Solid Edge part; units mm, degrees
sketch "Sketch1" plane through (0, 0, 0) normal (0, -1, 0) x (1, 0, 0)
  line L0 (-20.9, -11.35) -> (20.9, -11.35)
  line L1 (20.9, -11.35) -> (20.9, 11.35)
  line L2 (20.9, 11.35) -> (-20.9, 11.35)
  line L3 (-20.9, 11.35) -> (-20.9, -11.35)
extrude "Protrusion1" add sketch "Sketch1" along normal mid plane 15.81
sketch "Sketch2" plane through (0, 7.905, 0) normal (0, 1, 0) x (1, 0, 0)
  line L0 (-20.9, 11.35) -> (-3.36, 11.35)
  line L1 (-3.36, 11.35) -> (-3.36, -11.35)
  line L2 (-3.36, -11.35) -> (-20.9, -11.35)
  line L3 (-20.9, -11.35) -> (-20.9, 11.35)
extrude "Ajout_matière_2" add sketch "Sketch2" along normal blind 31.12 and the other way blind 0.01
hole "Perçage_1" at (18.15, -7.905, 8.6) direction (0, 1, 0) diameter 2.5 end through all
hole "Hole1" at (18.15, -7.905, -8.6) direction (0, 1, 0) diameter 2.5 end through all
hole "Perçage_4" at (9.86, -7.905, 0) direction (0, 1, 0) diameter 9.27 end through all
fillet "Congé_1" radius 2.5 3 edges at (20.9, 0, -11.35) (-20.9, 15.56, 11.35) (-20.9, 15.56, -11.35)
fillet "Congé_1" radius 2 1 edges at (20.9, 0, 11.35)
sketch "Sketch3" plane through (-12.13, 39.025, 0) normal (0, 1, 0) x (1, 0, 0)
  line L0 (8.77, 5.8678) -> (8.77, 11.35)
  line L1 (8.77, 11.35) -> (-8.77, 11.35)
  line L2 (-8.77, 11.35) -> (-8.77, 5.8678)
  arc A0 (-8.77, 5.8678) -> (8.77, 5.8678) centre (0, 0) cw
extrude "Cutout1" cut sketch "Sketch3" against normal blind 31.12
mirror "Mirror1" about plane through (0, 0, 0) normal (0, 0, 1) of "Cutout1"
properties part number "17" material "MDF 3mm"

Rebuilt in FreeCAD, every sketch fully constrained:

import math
import FreeCAD as App
import Part
import Sketcher
from FreeCAD import Vector
Q = App.Units.Quantity


def edges_at(feature, points):
    """Names of the edges that pass closest to the given points."""
    edges = feature.Shape.Edges
    near = lambda p: min(range(len(edges)), key=lambda i: edges[i].distToShape(Part.Vertex(*p))[0])
    return sorted({f"Edge{near(p) + 1}" for p in points})

doc = App.newDocument("Part")
params = doc.addObject("Spreadsheet::Sheet", "Params")
for row, (alias, value) in enumerate([
    ("sketch1_width", "41.8 mm"),
    ("sketch1_height", "22.7 mm"),
    ("pad1_length", "15.81 mm"),
    ("sketch2_height", "22.7 mm"),
    ("sketch2_width", "17.54 mm"),
    ("pad2_length", "31.12 mm"),
    ("pad2_length2", "0.01 mm"),
    ("sketch3_diameter", "2.5 mm"),
    ("hole_diameter", "2.5 mm"),
    ("sketch4_diameter", "2.5 mm"),
    ("hole2_diameter", "2.5 mm"),
    ("sketch5_diameter", "9.27 mm"),
    ("hole3_diameter", "9.27 mm"),
    ("fillet_radius", "2.5 mm"),
    ("fillet2_radius", "2 mm"),
    ("sketch6_width", "17.54 mm"),
    ("pocket1_length", "31.12 mm"),
], start=1):
    params.set(f"A{row}", alias)
    params.set(f"B{row}", "=" + value)
    params.setAlias(f"B{row}", alias)

body = doc.addObject("PartDesign::Body", "Body")

# Sketch on XZ plane
sketch1 = body.newObject("Sketcher::SketchObject", "Sketch")
sketch1.AttachmentSupport = (doc.getObject("XZ_Plane"), [""])
sketch1.MapMode = "FlatFace"
sketch1.addGeometry([
    Part.LineSegment(Vector(-21, 11, 0), Vector(-21, -11, 0)),
    Part.LineSegment(Vector(-21, -11, 0), Vector(21, -11, 0)),
    Part.LineSegment(Vector(21, -11, 0), Vector(21, 11, 0)),
    Part.LineSegment(Vector(21, 11, 0), Vector(-21, 11, 0)),
], False)
sketch1.addConstraint([
    Sketcher.Constraint("Coincident", 0, 2, 1, 1),
    Sketcher.Constraint("Coincident", 1, 2, 2, 1),
    Sketcher.Constraint("Coincident", 2, 2, 3, 1),
    Sketcher.Constraint("Coincident", 3, 2, 0, 1),
    Sketcher.Constraint("Vertical", 0),
    Sketcher.Constraint("Horizontal", 1),
    Sketcher.Constraint("Vertical", 2),
    Sketcher.Constraint("Horizontal", 3),
    Sketcher.Constraint("Symmetric", 0, 2, 2, 2, -1, 1),
    Sketcher.Constraint("DistanceX", 1, 1, 1, 2, Q("41.8 mm")),
    Sketcher.Constraint("DistanceY", 0, 2, 0, 1, Q("22.7 mm")),
])
sketch1.setExpression("Constraints[9]", "Params.sketch1_width")
sketch1.setExpression("Constraints[10]", "Params.sketch1_height")
pad1 = body.newObject("PartDesign::Pad", "Pad")
pad1.Profile = sketch1
pad1.setExpression("Length", "Params.pad1_length")
pad1.Midplane = True

# Sketch on XZ plane
sketch2 = body.newObject("Sketcher::SketchObject", "Sketch001")
sketch2.AttachmentSupport = (doc.getObject("XZ_Plane"), [""])
sketch2.MapMode = "FlatFace"
sketch2.AttachmentOffset = App.Placement(Vector(0, 0, -7.905), App.Rotation())
sketch2.addGeometry([
    Part.LineSegment(Vector(-3, -11, 0), Vector(-21, -11, 0)),
    Part.LineSegment(Vector(-21, -11, 0), Vector(-21, 11, 0)),
    Part.LineSegment(Vector(-21, 11, 0), Vector(-3, 11, 0)),
    Part.LineSegment(Vector(-3, 11, 0), Vector(-3, -11, 0)),
], False)
sketch2.addConstraint([
    Sketcher.Constraint("Coincident", 0, 2, 1, 1),
    Sketcher.Constraint("Coincident", 1, 2, 2, 1),
    Sketcher.Constraint("Coincident", 2, 2, 3, 1),
    Sketcher.Constraint("Coincident", 3, 2, 0, 1),
    Sketcher.Constraint("Horizontal", 0),
    Sketcher.Constraint("Vertical", 1),
    Sketcher.Constraint("Horizontal", 2),
    Sketcher.Constraint("Vertical", 3),
    Sketcher.Constraint("DistanceY", 1, 1, 1, 2, Q("22.7 mm")),
    Sketcher.Constraint("DistanceX", 0, 2, 0, 1, Q("17.54 mm")),
    Sketcher.Constraint("DistanceX", 0, 2, -1, 1, Q("20.9 mm")),
    Sketcher.Constraint("DistanceY", 0, 2, -1, 1, Q("11.35 mm")),
])
sketch2.setExpression("Constraints[8]", "Params.sketch2_height")
sketch2.setExpression("Constraints[9]", "Params.sketch2_width")
pad2 = body.newObject("PartDesign::Pad", "Pad001")
pad2.Profile = sketch2
pad2.Type = "TwoLengths"
pad2.setExpression("Length", "Params.pad2_length")
pad2.setExpression("Length2", "Params.pad2_length2")
pad2.Reversed = True

# Sketch on XZ plane
sketch3 = body.newObject("Sketcher::SketchObject", "Sketch002")
sketch3.AttachmentSupport = (doc.getObject("XZ_Plane"), [""])
sketch3.MapMode = "FlatFace"
sketch3.AttachmentOffset = App.Placement(Vector(0, 0, 7.905), App.Rotation())
sketch3.addGeometry(Part.Circle(Vector(18.1, 8.6, 0), Vector(0, 0, 1), 1.2), False)
sketch3.addConstraint([
    Sketcher.Constraint("Diameter", 0, Q("2.5 mm")),
    Sketcher.Constraint("DistanceY", -1, 1, 0, 3, Q("8.6 mm")),
    Sketcher.Constraint("DistanceX", -1, 1, 0, 3, Q("18.15 mm")),
])
sketch3.setExpression("Constraints[0]", "Params.sketch3_diameter")
doc.recompute()
hole = body.newObject("PartDesign::Hole", "Hole")
hole.Profile = sketch3
hole.ThreadType = "None"
hole.setExpression("Diameter", "Params.hole_diameter")
hole.DepthType = "ThroughAll"

# Sketch on XZ plane
sketch4 = body.newObject("Sketcher::SketchObject", "Sketch003")
sketch4.AttachmentSupport = (doc.getObject("XZ_Plane"), [""])
sketch4.MapMode = "FlatFace"
sketch4.AttachmentOffset = App.Placement(Vector(0, 0, 7.905), App.Rotation())
sketch4.addGeometry(Part.Circle(Vector(18.1, -8.6, 0), Vector(0, 0, 1), 1.2), False)
sketch4.addConstraint([
    Sketcher.Constraint("Diameter", 0, Q("2.5 mm")),
    Sketcher.Constraint("DistanceY", 0, 3, -1, 1, Q("8.6 mm")),
    Sketcher.Constraint("DistanceX", -1, 1, 0, 3, Q("18.15 mm")),
])
sketch4.setExpression("Constraints[0]", "Params.sketch4_diameter")
doc.recompute()
hole2 = body.newObject("PartDesign::Hole", "Hole001")
hole2.Profile = sketch4
hole2.ThreadType = "None"
hole2.setExpression("Diameter", "Params.hole2_diameter")
hole2.DepthType = "ThroughAll"

# Sketch on XZ plane
sketch5 = body.newObject("Sketcher::SketchObject", "Sketch004")
sketch5.AttachmentSupport = (doc.getObject("XZ_Plane"), [""])
sketch5.MapMode = "FlatFace"
sketch5.AttachmentOffset = App.Placement(Vector(0, 0, 7.905), App.Rotation())
sketch5.addGeometry(Part.Circle(Vector(9.9, 0, 0), Vector(0, 0, 1), 4.6), False)
sketch5.addConstraint([
    Sketcher.Constraint("PointOnObject", 0, 3, -1),
    Sketcher.Constraint("Diameter", 0, Q("9.27 mm")),
    Sketcher.Constraint("DistanceX", -1, 1, 0, 3, Q("9.86 mm")),
])
sketch5.setExpression("Constraints[1]", "Params.sketch5_diameter")
doc.recompute()
hole3 = body.newObject("PartDesign::Hole", "Hole002")
hole3.Profile = sketch5
hole3.ThreadType = "None"
hole3.setExpression("Diameter", "Params.hole3_diameter")
hole3.DepthType = "ThroughAll"
doc.recompute()

fillet = body.newObject("PartDesign::Fillet", "Fillet")
fillet.Base = (hole3, edges_at(hole3, [(20.9, 0, -11.35), (-20.9, 15.56, 11.35), (-20.9, 15.56, -11.35)]))
fillet.setExpression("Radius", "Params.fillet_radius")
doc.recompute()

fillet2 = body.newObject("PartDesign::Fillet", "Fillet001")
fillet2.Base = (fillet, edges_at(fillet, [(20.9, 0, 11.35)]))
fillet2.setExpression("Radius", "Params.fillet2_radius")

# Sketch on XZ plane
sketch6 = body.newObject("Sketcher::SketchObject", "Sketch005")
sketch6.AttachmentSupport = (doc.getObject("XZ_Plane"), [""])
sketch6.MapMode = "FlatFace"
sketch6.AttachmentOffset = App.Placement(Vector(0, 0, -39.025), App.Rotation())
sketch6.addGeometry([
    Part.ArcOfCircle(Part.Circle(Vector(-12, 0, 0), Vector(0, 0, 1), 11), math.radians(-146), math.radians(-34)),
    Part.LineSegment(Vector(-3, -6, 0), Vector(-3, -11, 0)),
    Part.LineSegment(Vector(-3, -11, 0), Vector(-21, -11, 0)),
    Part.LineSegment(Vector(-21, -11, 0), Vector(-21, -6, 0)),
], False)
sketch6.addConstraint([
    Sketcher.Constraint("Coincident", 0, 2, 1, 1),
    Sketcher.Constraint("Coincident", 1, 2, 2, 1),
    Sketcher.Constraint("Coincident", 2, 2, 3, 1),
    Sketcher.Constraint("Coincident", 3, 2, 0, 1),
    Sketcher.Constraint("Vertical", 1),
    Sketcher.Constraint("Horizontal", 2),
    Sketcher.Constraint("Vertical", 3),
    Sketcher.Constraint("PointOnObject", 0, 3, -1),
    Sketcher.Constraint("Horizontal", 0, 2, 3, 2),
    Sketcher.Constraint("Radius", 0, Q("10.552 mm")),
    Sketcher.Constraint("DistanceX", 2, 2, 2, 1, Q("17.54 mm")),
    Sketcher.Constraint("DistanceX", 2, 2, -1, 1, Q("20.9 mm")),
    Sketcher.Constraint("DistanceY", 1, 2, -1, 1, Q("11.35 mm")),
])
sketch6.setExpression("Constraints[10]", "Params.sketch6_width")
pocket1 = body.newObject("PartDesign::Pocket", "Pocket")
pocket1.Profile = sketch6
pocket1.setExpression("Length", "Params.pocket1_length")
pocket1.Reversed = True
doc.recompute()

mirrored = body.newObject("PartDesign::Mirrored", "Mirrored")
mirrored.Originals = [pocket1]
mirrored.MirrorPlane = (doc.getObject("XY_Plane"), [""])
body.Tip = mirrored

doc.recompute()
